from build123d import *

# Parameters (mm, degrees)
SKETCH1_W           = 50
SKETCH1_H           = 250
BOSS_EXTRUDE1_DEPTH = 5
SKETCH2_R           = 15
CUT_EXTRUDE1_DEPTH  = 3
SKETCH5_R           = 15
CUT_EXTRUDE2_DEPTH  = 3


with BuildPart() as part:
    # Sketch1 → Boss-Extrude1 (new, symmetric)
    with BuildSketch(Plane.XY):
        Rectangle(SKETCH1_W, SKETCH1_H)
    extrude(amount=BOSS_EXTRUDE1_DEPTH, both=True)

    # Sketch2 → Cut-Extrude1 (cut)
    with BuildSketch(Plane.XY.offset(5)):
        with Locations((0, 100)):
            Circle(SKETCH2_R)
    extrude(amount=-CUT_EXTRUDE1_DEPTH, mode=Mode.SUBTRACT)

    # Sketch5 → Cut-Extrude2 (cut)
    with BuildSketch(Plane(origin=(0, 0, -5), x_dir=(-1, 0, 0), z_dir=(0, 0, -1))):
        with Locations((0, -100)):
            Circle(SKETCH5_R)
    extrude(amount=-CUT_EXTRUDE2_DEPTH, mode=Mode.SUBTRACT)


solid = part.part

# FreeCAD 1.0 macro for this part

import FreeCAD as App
import Part
import Sketcher
Q = App.Units.Quantity


def add_polygon(sketch, points):
    """Adds a closed chain of lines whose ends are joined by coincident constraints."""
    first, n = sketch.GeometryCount, len(points)
    for a, b in zip(points, points[1:] + points[:1]):
        sketch.addGeometry(Part.LineSegment(App.Vector(*a, 0), App.Vector(*b, 0)), False)
    for i in range(n):
        sketch.addConstraint(Sketcher.Constraint("Coincident", first + i, 2, first + (i + 1) % n, 1))

doc = App.newDocument("Part")
body = doc.addObject("PartDesign::Body", "Body")

# Sketch on XY plane
sketch1 = body.newObject("Sketcher::SketchObject", "Sketch")
sketch1.AttachmentSupport = (doc.getObject("XY_Plane"), [""])
sketch1.MapMode = "FlatFace"
add_polygon(sketch1, [(-25, 125), (-25, -125), (25, -125), (25, 125)])  # lines 0-3
sketch1.addConstraint([
    Sketcher.Constraint("Vertical", 0),
    Sketcher.Constraint("Horizontal", 1),
    Sketcher.Constraint("Vertical", 2),
    Sketcher.Constraint("Horizontal", 3),
    Sketcher.Constraint("Symmetric", 0, 2, 2, 2, -1, 1),
    Sketcher.Constraint("DistanceX", 1, 1, 1, 2, Q("50 mm")),
    Sketcher.Constraint("DistanceY", 0, 2, 0, 1, Q("250 mm")),
])
pad1 = body.newObject("PartDesign::Pad", "Pad")
pad1.Profile = sketch1
pad1.Length = 10
pad1.Midplane = True

# Sketch on XY plane
sketch2 = body.newObject("Sketcher::SketchObject", "Sketch001")
sketch2.AttachmentSupport = (doc.getObject("XY_Plane"), [""])
sketch2.MapMode = "FlatFace"
sketch2.AttachmentOffset = App.Placement(App.Vector(0, 0, 5), App.Rotation())
sketch2.addGeometry(Part.Circle(App.Vector(0, 100, 0), App.Vector(0, 0, 1), 15), False)
sketch2.addConstraint([
    Sketcher.Constraint("PointOnObject", 0, 3, -2),
    Sketcher.Constraint("Diameter", 0, Q("30 mm")),
    Sketcher.Constraint("DistanceY", -1, 1, 0, 3, Q("100 mm")),
])
pocket1 = body.newObject("PartDesign::Pocket", "Pocket")
pocket1.Profile = sketch2
pocket1.Length = 3

# Sketch on XY plane
sketch3 = body.newObject("Sketcher::SketchObject", "Sketch002")
sketch3.AttachmentSupport = (doc.getObject("XY_Plane"), [""])
sketch3.MapMode = "FlatFace"
sketch3.AttachmentOffset = App.Placement(App.Vector(0, 0, -5), App.Rotation())
sketch3.addGeometry(Part.Circle(App.Vector(0, -100, 0), App.Vector(0, 0, 1), 15), False)
sketch3.addConstraint([
    Sketcher.Constraint("PointOnObject", 0, 3, -2),
    Sketcher.Constraint("Diameter", 0, Q("30 mm")),
    Sketcher.Constraint("DistanceY", 0, 3, -1, 1, Q("100 mm")),
])
pocket2 = body.newObject("PartDesign::Pocket", "Pocket001")
pocket2.Profile = sketch3
pocket2.Length = 3
pocket2.Reversed = True

doc.recompute()
